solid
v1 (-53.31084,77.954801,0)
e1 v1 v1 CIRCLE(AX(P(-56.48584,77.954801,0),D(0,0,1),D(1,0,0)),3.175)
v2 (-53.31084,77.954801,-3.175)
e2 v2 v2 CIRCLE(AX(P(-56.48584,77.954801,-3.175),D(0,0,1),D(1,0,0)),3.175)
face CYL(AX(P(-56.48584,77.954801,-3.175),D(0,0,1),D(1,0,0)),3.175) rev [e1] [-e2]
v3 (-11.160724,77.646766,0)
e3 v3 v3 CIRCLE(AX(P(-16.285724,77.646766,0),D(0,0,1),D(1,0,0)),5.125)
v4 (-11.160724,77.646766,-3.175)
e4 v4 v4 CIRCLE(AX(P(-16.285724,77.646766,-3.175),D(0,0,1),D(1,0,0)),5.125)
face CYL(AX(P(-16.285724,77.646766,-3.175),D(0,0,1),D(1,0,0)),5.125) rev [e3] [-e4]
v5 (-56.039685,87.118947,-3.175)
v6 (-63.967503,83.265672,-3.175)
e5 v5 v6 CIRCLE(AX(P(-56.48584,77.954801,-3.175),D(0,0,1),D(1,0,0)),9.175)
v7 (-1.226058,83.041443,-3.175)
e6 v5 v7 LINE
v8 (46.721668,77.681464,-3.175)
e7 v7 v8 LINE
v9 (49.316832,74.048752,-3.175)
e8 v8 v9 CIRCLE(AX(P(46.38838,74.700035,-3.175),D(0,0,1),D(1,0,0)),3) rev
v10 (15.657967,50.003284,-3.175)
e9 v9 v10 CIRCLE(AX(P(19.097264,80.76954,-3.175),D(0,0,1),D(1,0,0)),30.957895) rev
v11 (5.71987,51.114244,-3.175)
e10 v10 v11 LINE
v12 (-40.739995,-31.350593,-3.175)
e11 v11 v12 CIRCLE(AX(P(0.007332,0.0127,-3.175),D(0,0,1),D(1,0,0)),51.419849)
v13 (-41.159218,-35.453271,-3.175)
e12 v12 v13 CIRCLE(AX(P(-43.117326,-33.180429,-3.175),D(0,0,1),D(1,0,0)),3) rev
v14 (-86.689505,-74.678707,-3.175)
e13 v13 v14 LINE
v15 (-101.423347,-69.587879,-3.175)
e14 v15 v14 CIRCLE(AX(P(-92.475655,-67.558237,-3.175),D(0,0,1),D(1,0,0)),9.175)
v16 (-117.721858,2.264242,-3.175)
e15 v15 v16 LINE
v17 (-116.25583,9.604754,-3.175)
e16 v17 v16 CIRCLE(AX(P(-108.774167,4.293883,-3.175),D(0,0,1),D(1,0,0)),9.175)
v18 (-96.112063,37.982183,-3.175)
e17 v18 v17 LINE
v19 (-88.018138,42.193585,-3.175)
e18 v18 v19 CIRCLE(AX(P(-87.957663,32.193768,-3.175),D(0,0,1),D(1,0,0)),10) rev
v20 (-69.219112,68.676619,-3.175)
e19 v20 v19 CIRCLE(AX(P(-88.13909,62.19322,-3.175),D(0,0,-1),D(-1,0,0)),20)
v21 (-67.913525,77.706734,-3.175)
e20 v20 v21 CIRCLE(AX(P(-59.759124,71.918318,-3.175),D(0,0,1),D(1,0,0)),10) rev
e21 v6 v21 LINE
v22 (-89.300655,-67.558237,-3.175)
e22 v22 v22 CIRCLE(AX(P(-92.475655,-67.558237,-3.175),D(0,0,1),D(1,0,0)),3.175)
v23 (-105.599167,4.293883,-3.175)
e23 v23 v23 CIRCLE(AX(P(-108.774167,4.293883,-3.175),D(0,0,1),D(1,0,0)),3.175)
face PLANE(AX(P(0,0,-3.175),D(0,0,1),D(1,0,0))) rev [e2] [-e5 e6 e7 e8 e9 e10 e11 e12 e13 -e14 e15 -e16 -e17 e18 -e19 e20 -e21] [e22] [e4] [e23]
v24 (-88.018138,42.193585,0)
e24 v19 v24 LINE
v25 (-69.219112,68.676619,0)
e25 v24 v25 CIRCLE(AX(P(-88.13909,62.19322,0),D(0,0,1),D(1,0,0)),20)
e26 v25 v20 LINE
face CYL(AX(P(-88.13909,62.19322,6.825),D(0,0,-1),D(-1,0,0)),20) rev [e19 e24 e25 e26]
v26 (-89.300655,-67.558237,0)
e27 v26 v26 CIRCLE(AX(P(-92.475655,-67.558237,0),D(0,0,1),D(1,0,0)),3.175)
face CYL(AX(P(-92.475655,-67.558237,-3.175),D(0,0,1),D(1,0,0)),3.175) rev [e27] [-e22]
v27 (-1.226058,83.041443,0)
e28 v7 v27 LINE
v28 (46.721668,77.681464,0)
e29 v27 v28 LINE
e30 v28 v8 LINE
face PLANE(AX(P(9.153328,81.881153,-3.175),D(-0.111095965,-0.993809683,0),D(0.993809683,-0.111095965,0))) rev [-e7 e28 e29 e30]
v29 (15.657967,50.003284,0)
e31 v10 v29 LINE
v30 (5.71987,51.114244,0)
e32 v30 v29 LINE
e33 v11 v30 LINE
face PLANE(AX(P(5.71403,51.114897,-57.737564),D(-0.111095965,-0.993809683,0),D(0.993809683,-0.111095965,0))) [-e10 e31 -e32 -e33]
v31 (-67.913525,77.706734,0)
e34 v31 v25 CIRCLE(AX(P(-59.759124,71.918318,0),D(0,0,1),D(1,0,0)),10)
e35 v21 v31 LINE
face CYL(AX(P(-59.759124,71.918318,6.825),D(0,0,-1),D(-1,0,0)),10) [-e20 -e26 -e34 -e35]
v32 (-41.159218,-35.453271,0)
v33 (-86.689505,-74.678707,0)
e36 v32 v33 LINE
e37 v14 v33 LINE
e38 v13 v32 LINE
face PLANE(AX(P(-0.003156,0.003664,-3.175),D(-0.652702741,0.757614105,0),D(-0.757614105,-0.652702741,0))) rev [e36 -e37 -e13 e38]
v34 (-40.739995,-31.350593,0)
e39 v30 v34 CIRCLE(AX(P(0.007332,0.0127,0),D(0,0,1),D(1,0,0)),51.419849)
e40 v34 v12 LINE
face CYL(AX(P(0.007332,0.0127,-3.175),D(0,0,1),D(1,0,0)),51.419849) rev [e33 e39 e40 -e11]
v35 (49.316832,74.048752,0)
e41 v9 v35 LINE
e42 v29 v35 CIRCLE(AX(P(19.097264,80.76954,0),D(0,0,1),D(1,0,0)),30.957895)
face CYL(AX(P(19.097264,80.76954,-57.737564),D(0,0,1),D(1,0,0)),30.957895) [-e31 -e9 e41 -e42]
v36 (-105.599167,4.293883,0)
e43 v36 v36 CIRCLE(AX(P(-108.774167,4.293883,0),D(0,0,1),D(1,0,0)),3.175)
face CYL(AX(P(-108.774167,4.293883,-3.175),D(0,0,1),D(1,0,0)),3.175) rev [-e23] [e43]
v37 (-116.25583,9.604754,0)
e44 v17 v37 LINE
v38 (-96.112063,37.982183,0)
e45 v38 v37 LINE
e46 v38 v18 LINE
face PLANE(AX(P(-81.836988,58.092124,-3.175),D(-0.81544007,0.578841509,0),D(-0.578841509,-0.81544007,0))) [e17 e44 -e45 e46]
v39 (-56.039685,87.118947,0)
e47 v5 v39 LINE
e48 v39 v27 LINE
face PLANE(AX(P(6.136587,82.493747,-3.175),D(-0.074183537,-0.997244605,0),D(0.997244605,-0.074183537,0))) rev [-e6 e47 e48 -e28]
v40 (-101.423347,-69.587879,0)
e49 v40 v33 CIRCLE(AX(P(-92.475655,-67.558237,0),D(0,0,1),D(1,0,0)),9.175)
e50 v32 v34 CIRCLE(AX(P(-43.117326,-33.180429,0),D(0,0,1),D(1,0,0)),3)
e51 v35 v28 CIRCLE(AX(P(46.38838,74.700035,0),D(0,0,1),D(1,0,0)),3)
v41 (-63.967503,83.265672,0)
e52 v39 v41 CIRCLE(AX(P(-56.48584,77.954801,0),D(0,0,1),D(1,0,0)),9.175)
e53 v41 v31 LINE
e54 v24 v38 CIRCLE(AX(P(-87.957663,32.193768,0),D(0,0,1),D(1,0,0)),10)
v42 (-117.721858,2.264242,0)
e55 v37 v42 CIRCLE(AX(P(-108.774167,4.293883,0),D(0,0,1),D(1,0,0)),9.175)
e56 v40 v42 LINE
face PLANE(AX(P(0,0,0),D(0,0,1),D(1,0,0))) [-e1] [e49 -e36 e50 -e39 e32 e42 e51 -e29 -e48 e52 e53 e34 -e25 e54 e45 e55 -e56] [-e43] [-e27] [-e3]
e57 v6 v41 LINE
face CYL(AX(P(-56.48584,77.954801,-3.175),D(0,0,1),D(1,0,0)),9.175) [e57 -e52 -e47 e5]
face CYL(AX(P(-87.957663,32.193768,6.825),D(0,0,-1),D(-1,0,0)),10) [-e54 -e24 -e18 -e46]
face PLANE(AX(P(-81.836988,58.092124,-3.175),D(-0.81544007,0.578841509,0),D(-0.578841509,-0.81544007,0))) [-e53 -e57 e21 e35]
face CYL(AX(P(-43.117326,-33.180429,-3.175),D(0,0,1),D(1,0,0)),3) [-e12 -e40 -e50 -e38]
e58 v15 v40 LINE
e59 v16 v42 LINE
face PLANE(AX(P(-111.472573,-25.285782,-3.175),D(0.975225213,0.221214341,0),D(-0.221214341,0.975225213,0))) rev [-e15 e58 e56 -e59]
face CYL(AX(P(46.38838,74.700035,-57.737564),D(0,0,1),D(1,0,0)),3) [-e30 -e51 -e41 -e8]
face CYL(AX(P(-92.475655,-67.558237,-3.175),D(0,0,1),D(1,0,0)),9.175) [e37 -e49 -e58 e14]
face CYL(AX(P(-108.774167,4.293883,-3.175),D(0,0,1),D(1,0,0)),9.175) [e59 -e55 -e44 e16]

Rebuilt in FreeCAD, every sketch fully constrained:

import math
import FreeCAD as App
import Part
import Sketcher

V = App.Vector


def edges_at(feature, points):
    """Names of the edges that pass closest to the given points."""
    edges = feature.Shape.Edges
    near = lambda p: min(range(len(edges)), key=lambda i: edges[i].distToShape(Part.Vertex(*p))[0])
    return sorted({f"Edge{near(p) + 1}" for p in points})

doc = App.newDocument("Part")
body = doc.addObject("PartDesign::Body", "Body")

# Sketch on XY plane
sketch1 = body.newObject("Sketcher::SketchObject", "Sketch")
sketch1.AttachmentSupport = (doc.getObject("XY_Plane"), [""])
sketch1.MapMode = "FlatFace"
sketch1.addGeometry(Part.LineSegment(V(9.2, 81.9, 0), V(-1.2, 83, 0)), False)
sketch1.addGeometry(Part.LineSegment(V(-1.2, 83, 0), V(-56, 87.1, 0)), False)
sketch1.addGeometry(Part.ArcOfCircle(Part.Circle(V(-56.5, 78, 0), V(0, 0, 1), 9.2), math.radians(87), math.radians(145)), False)
sketch1.addGeometry(Part.LineSegment(V(-64, 83.3, 0), V(-116.3, 9.6, 0)), False)
sketch1.addGeometry(Part.ArcOfCircle(Part.Circle(V(-108.8, 4.3, 0), V(0, 0, 1), 9.2), math.radians(145), math.radians(193)), False)
sketch1.addGeometry(Part.LineSegment(V(-117.7, 2.3, 0), V(-101.4, -69.6, 0)), False)
sketch1.addGeometry(Part.ArcOfCircle(Part.Circle(V(-92.5, -67.6, 0), V(0, 0, 1), 9.2), math.radians(-167), math.radians(-51)), False)
sketch1.addGeometry(Part.LineSegment(V(-86.7, -74.7, 0), V(-38.9, -33.5, 0)), False)
sketch1.addGeometry(Part.ArcOfCircle(Part.Circle(V(0, 0, 0), V(0, 0, 1), 51.4), math.radians(84), math.radians(221)), False)
sketch1.addGeometry(Part.LineSegment(V(5.7, 51.1, 0), V(9.2, 81.9, 0)), False)
sketch1.addGeometry(Part.Circle(V(-92.5, -67.6, 0), V(0, 0, 1), 3.2), False)
sketch1.addGeometry(Part.Circle(V(-108.8, 4.3, 0), V(0, 0, 1), 3.2), False)
sketch1.addGeometry(Part.Circle(V(-56.5, 78, 0), V(0, 0, 1), 3.2), False)
sketch1.addGeometry(Part.Circle(V(-16.3, 77.6, 0), V(0, 0, 1), 5.1), False)
sketch1.addConstraint(Sketcher.Constraint("Coincident", 0, 2, 1, 1))
sketch1.addConstraint(Sketcher.Constraint("Coincident", 1, 2, 2, 1))
sketch1.addConstraint(Sketcher.Constraint("Tangent", 2, 2, 3, 1))
sketch1.addConstraint(Sketcher.Constraint("Tangent", 3, 2, 4, 1))
sketch1.addConstraint(Sketcher.Constraint("Tangent", 4, 2, 5, 1))
sketch1.addConstraint(Sketcher.Constraint("Tangent", 5, 2, 6, 1))
sketch1.addConstraint(Sketcher.Constraint("Coincident", 6, 2, 7, 1))
sketch1.addConstraint(Sketcher.Constraint("Coincident", 7, 2, 8, 2))
sketch1.addConstraint(Sketcher.Constraint("Coincident", 8, 1, 9, 1))
sketch1.addConstraint(Sketcher.Constraint("Coincident", 9, 2, 0, 1))
sketch1.addConstraint(Sketcher.Constraint("Coincident", 10, 3, 6, 3))
sketch1.addConstraint(Sketcher.Constraint("Coincident", 11, 3, 4, 3))
sketch1.addConstraint(Sketcher.Constraint("Coincident", 12, 3, 2, 3))
sketch1.addConstraint(Sketcher.Constraint("Equal", 2, 4))
sketch1.addConstraint(Sketcher.Constraint("Equal", 4, 6))
sketch1.addConstraint(Sketcher.Constraint("Equal", 10, 11))
sketch1.addConstraint(Sketcher.Constraint("Equal", 11, 12))
sketch1.addConstraint(Sketcher.Constraint("Perpendicular", 0, 9))
sketch1.addConstraint(Sketcher.Constraint("Diameter", 10, 6.35))
sketch1.addConstraint(Sketcher.Constraint("Diameter", 13, 10.25))
sketch1.addConstraint(Sketcher.Constraint("Radius", 2, 9.175))
sketch1.addConstraint(Sketcher.Constraint("Radius", 8, 51.419849))
sketch1.addConstraint(Sketcher.Constraint("DistanceY", -1, 1, 2, 3, 77.954801))
sketch1.addConstraint(Sketcher.Constraint("DistanceY", -1, 1, 8, 3, 0.0127))
sketch1.addConstraint(Sketcher.Constraint("DistanceY", -1, 1, 9, 2, 81.8805))
sketch1.addConstraint(Sketcher.Constraint("DistanceX", 4, 3, 8, 3, 108.781499))
sketch1.addConstraint(Sketcher.Constraint("DistanceY", 8, 1, 0, 2, 31.927199))
sketch1.addConstraint(Sketcher.Constraint("Distance", 1, 54.965078))
sketch1.addConstraint(Sketcher.Constraint("DistanceX", 2, 3, -1, 1, 56.48584))
sketch1.addConstraint(Sketcher.Constraint("DistanceX", 3, 2, -1, 1, 116.255829))
sketch1.addConstraint(Sketcher.Constraint("DistanceX", 4, 2, -1, 1, 117.721858))
sketch1.addConstraint(Sketcher.Constraint("DistanceY", -1, 1, 4, 2, 2.264242))
sketch1.addConstraint(Sketcher.Constraint("DistanceY", 5, 2, -1, 1, 69.587879))
sketch1.addConstraint(Sketcher.Constraint("DistanceX", 7, 2, -1, 1, 38.94907))
sketch1.addConstraint(Sketcher.Constraint("DistanceX", -1, 1, 8, 1, 5.71987))
sketch1.addConstraint(Sketcher.Constraint("DistanceX", 0, 2, 8, 3, 1.23339))
sketch1.addConstraint(Sketcher.Constraint("DistanceX", 1, 2, 13, 3, 39.753961))
sketch1.addConstraint(Sketcher.Constraint("DistanceY", 13, 3, 1, 2, 9.472182))
sketch1.addConstraint(Sketcher.Constraint("DistanceX", 6, 3, 6, 2, 5.786151))
pad1 = body.newObject("PartDesign::Pad", "Pad")
pad1.Profile = sketch1
pad1.Length = 3.175
pad1.Reversed = True

# Sketch on XY plane
sketch2 = body.newObject("Sketcher::SketchObject", "Sketch001")
sketch2.AttachmentSupport = (doc.getObject("XY_Plane"), [""])
sketch2.MapMode = "FlatFace"
sketch2.addGeometry(Part.LineSegment(V(9, 82, 0), V(6, 51, 0)), False)
sketch2.addGeometry(Part.LineSegment(V(6, 51, 0), V(16, 50, 0)), False)
sketch2.addGeometry(Part.ArcOfCircle(Part.Circle(V(19, 81, 0), V(0, 0, 1), 31), math.radians(-96), math.radians(-6)), False)
sketch2.addGeometry(Part.LineSegment(V(50, 77, 0), V(9, 82, 0)), False)
sketch2.addConstraint(Sketcher.Constraint("Coincident", 0, 2, 1, 1))
sketch2.addConstraint(Sketcher.Constraint("Tangent", 1, 2, 2, 1))
sketch2.addConstraint(Sketcher.Constraint("Coincident", 2, 2, 3, 1))
sketch2.addConstraint(Sketcher.Constraint("Coincident", 3, 2, 0, 1))
sketch2.addConstraint(Sketcher.Constraint("Perpendicular", 0, 1))
sketch2.addConstraint(Sketcher.Constraint("Parallel", 1, 3))
sketch2.addConstraint(Sketcher.Constraint("Distance", 1, 10.0))
sketch2.addConstraint(Sketcher.Constraint("Radius", 2, 30.957895))
sketch2.addConstraint(Sketcher.Constraint("DistanceY", 0, 2, 2, 2, 26.215999))
sketch2.addConstraint(Sketcher.Constraint("DistanceY", -1, 1, 3, 2, 81.8805))
sketch2.addConstraint(Sketcher.Constraint("DistanceX", 3, 2, 1, 2, 6.4988))
sketch2.addConstraint(Sketcher.Constraint("DistanceX", -1, 1, 0, 2, 5.71987))
pad2 = body.newObject("PartDesign::Pad", "Pad001")
pad2.Profile = sketch2
pad2.Length = 3.175
pad2.Reversed = True
doc.recompute()

fillet = body.newObject("PartDesign::Fillet", "Fillet")
fillet.Base = (pad2, edges_at(pad2, [(49.864, 77.33, -1.587)]))
fillet.Radius = 3
doc.recompute()

fillet2 = body.newObject("PartDesign::Fillet", "Fillet001")
fillet2.Base = (fillet, edges_at(fillet, [(-38.949, -33.549, -1.587)]))
fillet2.Radius = 3

# Sketch on XY plane
sketch3 = body.newObject("Sketcher::SketchObject", "Sketch002")
sketch3.AttachmentSupport = (doc.getObject("XY_Plane"), [""])
sketch3.MapMode = "FlatFace"
sketch3.AttachmentOffset = App.Placement(V(0, 0, -3.175), App.Rotation())
sketch3.addGeometry(Part.Circle(V(-88, 62, 0), V(0, 0, 1), 20), False)
sketch3.addConstraint(Sketcher.Constraint("Diameter", 0, 40.0))
sketch3.addConstraint(Sketcher.Constraint("DistanceX", 0, 3, -1, 1, 88.13909))
sketch3.addConstraint(Sketcher.Constraint("DistanceY", -1, 1, 0, 3, 62.19322))
pocket1 = body.newObject("PartDesign::Pocket", "Pocket")
pocket1.Profile = sketch3
pocket1.Length = 10
pocket1.Reversed = True
doc.recompute()

fillet3 = body.newObject("PartDesign::Fillet", "Fillet002")
fillet3.Base = (pocket1, edges_at(pocket1, [(-71.284, 72.959, -1.587), (-92.742, 42.73, -1.587)]))
fillet3.Radius = 10

doc.recompute()
